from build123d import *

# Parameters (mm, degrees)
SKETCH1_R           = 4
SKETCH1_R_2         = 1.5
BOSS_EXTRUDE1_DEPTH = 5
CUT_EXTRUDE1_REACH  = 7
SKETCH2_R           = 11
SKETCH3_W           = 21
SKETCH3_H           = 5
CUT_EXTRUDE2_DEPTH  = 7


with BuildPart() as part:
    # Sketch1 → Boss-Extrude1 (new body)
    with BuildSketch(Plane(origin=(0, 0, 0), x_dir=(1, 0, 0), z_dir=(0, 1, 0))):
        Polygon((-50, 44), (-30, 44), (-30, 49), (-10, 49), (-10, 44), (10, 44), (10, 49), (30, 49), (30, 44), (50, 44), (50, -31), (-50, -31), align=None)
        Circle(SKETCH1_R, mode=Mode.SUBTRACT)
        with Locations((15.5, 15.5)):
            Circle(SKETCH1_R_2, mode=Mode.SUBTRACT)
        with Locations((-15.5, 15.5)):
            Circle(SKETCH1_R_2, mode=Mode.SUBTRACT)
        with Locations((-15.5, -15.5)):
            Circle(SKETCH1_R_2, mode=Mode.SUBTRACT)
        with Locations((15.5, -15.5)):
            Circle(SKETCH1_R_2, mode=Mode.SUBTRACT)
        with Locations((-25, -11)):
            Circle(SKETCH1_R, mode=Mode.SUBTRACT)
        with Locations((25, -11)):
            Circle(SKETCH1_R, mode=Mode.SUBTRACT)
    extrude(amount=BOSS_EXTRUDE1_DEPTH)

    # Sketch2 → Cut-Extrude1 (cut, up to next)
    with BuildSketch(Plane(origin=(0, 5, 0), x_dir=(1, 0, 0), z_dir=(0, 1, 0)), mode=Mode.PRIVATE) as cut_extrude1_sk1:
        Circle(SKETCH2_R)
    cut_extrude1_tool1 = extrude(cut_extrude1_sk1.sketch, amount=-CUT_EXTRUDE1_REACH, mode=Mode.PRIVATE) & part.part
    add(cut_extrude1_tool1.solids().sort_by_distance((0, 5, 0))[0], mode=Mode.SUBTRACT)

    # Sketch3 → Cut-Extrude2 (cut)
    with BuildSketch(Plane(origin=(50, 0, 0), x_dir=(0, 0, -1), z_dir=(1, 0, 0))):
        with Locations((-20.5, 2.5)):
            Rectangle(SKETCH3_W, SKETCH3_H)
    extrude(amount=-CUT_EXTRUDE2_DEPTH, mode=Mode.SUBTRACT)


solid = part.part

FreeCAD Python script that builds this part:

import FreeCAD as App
import Part
import Sketcher

doc = App.newDocument("Part")
body = doc.addObject("PartDesign::Body", "Body")

# Sketch on XZ plane
sketch1 = doc.addObject("Sketcher::SketchObject", "Sketch")
body.addObject(sketch1)
sketch1.AttachmentSupport = (doc.XZ_Plane, [""])
sketch1.MapMode = "FlatFace"
sketch1.addGeometry(Part.LineSegment(App.Vector(-30, -44, 0), App.Vector(-50, -44, 0)), False)
sketch1.addGeometry(Part.LineSegment(App.Vector(-50, -44, 0), App.Vector(-50, 31, 0)), False)
sketch1.addGeometry(Part.LineSegment(App.Vector(-50, 31, 0), App.Vector(50, 31, 0)), False)
sketch1.addGeometry(Part.LineSegment(App.Vector(50, 31, 0), App.Vector(50, -44, 0)), False)
sketch1.addGeometry(Part.LineSegment(App.Vector(50, -44, 0), App.Vector(30, -44, 0)), False)
sketch1.addGeometry(Part.LineSegment(App.Vector(30, -44, 0), App.Vector(30, -49, 0)), False)
sketch1.addGeometry(Part.LineSegment(App.Vector(30, -49, 0), App.Vector(10, -49, 0)), False)
sketch1.addGeometry(Part.LineSegment(App.Vector(10, -49, 0), App.Vector(10, -44, 0)), False)
sketch1.addGeometry(Part.LineSegment(App.Vector(10, -44, 0), App.Vector(-10, -44, 0)), False)
sketch1.addGeometry(Part.LineSegment(App.Vector(-10, -44, 0), App.Vector(-10, -49, 0)), False)
sketch1.addGeometry(Part.LineSegment(App.Vector(-10, -49, 0), App.Vector(-30, -49, 0)), False)
sketch1.addGeometry(Part.LineSegment(App.Vector(-30, -49, 0), App.Vector(-30, -44, 0)), False)
sketch1.addGeometry(Part.Circle(App.Vector(15.5, 15.5, 0), App.Vector(0, 0, 1), 1.5), False)
sketch1.addGeometry(Part.Circle(App.Vector(25, 11, 0), App.Vector(0, 0, 1), 4), False)
sketch1.addGeometry(Part.Circle(App.Vector(-15.5, 15.5, 0), App.Vector(0, 0, 1), 1.5), False)
sketch1.addGeometry(Part.Circle(App.Vector(-25, 11, 0), App.Vector(0, 0, 1), 4), False)
sketch1.addGeometry(Part.Circle(App.Vector(15.5, -15.5, 0), App.Vector(0, 0, 1), 1.5), False)
sketch1.addGeometry(Part.Circle(App.Vector(0, 0, 0), App.Vector(0, 0, 1), 4), False)
sketch1.addGeometry(Part.Circle(App.Vector(-15.5, -15.5, 0), App.Vector(0, 0, 1), 1.5), False)
sketch1.addConstraint(Sketcher.Constraint("Coincident", 0, 2, 1, 1))
sketch1.addConstraint(Sketcher.Constraint("Coincident", 1, 2, 2, 1))
sketch1.addConstraint(Sketcher.Constraint("Coincident", 2, 2, 3, 1))
sketch1.addConstraint(Sketcher.Constraint("Coincident", 3, 2, 4, 1))
sketch1.addConstraint(Sketcher.Constraint("Coincident", 4, 2, 5, 1))
sketch1.addConstraint(Sketcher.Constraint("Coincident", 5, 2, 6, 1))
sketch1.addConstraint(Sketcher.Constraint("Coincident", 6, 2, 7, 1))
sketch1.addConstraint(Sketcher.Constraint("Coincident", 7, 2, 8, 1))
sketch1.addConstraint(Sketcher.Constraint("Coincident", 8, 2, 9, 1))
sketch1.addConstraint(Sketcher.Constraint("Coincident", 9, 2, 10, 1))
sketch1.addConstraint(Sketcher.Constraint("Coincident", 10, 2, 11, 1))
sketch1.addConstraint(Sketcher.Constraint("Coincident", 11, 2, 0, 1))
sketch1.addConstraint(Sketcher.Constraint("Horizontal", 0))
sketch1.addConstraint(Sketcher.Constraint("Vertical", 1))
sketch1.addConstraint(Sketcher.Constraint("Horizontal", 2))
sketch1.addConstraint(Sketcher.Constraint("Vertical", 3))
sketch1.addConstraint(Sketcher.Constraint("Horizontal", 4))
sketch1.addConstraint(Sketcher.Constraint("Vertical", 5))
sketch1.addConstraint(Sketcher.Constraint("Horizontal", 6))
sketch1.addConstraint(Sketcher.Constraint("Vertical", 7))
sketch1.addConstraint(Sketcher.Constraint("Horizontal", 8))
sketch1.addConstraint(Sketcher.Constraint("Vertical", 9))
sketch1.addConstraint(Sketcher.Constraint("Horizontal", 10))
sketch1.addConstraint(Sketcher.Constraint("Vertical", 11))
sketch1.addConstraint(Sketcher.Constraint("Coincident", 17, 3, -1, 1))
sketch1.addConstraint(Sketcher.Constraint("Equal", 12, 14))
sketch1.addConstraint(Sketcher.Constraint("Equal", 13, 15))
sketch1.addConstraint(Sketcher.Constraint("Equal", 14, 16))
sketch1.addConstraint(Sketcher.Constraint("Equal", 15, 17))
sketch1.addConstraint(Sketcher.Constraint("Equal", 16, 18))
sketch1.addConstraint(Sketcher.Constraint("Symmetric", 14, 3, 16, 3, -1, 1))
sketch1.addConstraint(Sketcher.Constraint("Symmetric", 12, 3, 18, 3, -1, 1))
sketch1.addConstraint(Sketcher.Constraint("Symmetric", 12, 3, 14, 3, -2))
sketch1.addConstraint(Sketcher.Constraint("Symmetric", 13, 3, 15, 3, -2))
sketch1.addConstraint(Sketcher.Constraint("Symmetric", 0, 2, 3, 2, -2))
sketch1.addConstraint(Sketcher.Constraint("Symmetric", 6, 2, 9, 2, -2))
sketch1.addConstraint(Sketcher.Constraint("Horizontal", 4, 2, 7, 2))
sketch1.addConstraint(Sketcher.Constraint("Equal", 0, 4))
sketch1.addConstraint(Sketcher.Constraint("Equal", 4, 6))
sketch1.addConstraint(Sketcher.Constraint("Equal", 6, 8))
sketch1.addConstraint(Sketcher.Constraint("Diameter", 12, 3.0))
sketch1.addConstraint(Sketcher.Constraint("Diameter", 13, 8.0))
sketch1.addConstraint(Sketcher.Constraint("DistanceX", 0, 2, 0, 1, 20.0))
sketch1.addConstraint(Sketcher.Constraint("DistanceY", 1, 1, 1, 2, 75.0))
sketch1.addConstraint(Sketcher.Constraint("DistanceY", 5, 2, 5, 1, 5.0))
sketch1.addConstraint(Sketcher.Constraint("DistanceX", -1, 1, 13, 3, 25.0))
sketch1.addConstraint(Sketcher.Constraint("DistanceY", -1, 1, 13, 3, 11.0))
sketch1.addConstraint(Sketcher.Constraint("DistanceY", 0, 2, -1, 1, 44.0))
sketch1.addConstraint(Sketcher.Constraint("DistanceX", 14, 3, 12, 3, 31.0))
sketch1.addConstraint(Sketcher.Constraint("DistanceY", 16, 3, 12, 3, 31.0))
pad1 = doc.addObject("PartDesign::Pad", "Pad")
body.addObject(pad1)
pad1.Profile = sketch1
pad1.Length = 5
pad1.Reversed = True

# Sketch on XZ plane
sketch2 = doc.addObject("Sketcher::SketchObject", "Sketch001")
body.addObject(sketch2)
sketch2.AttachmentSupport = (doc.XZ_Plane, [""])
sketch2.MapMode = "FlatFace"
sketch2.AttachmentOffset = App.Placement(App.Vector(0, 0, -5), App.Rotation())
sketch2.addGeometry(Part.Circle(App.Vector(0, 0, 0), App.Vector(0, 0, 1), 11), False)
sketch2.addConstraint(Sketcher.Constraint("Coincident", 0, 3, -1, 1))
sketch2.addConstraint(Sketcher.Constraint("Diameter", 0, 22.0))
pocket1 = doc.addObject("PartDesign::Pocket", "Pocket")
body.addObject(pocket1)
pocket1.Profile = sketch2
pocket1.Length = 5
pocket1.Reversed = True

# Sketch on YZ plane
sketch3 = doc.addObject("Sketcher::SketchObject", "Sketch002")
body.addObject(sketch3)
sketch3.AttachmentSupport = (doc.YZ_Plane, [""])
sketch3.MapMode = "FlatFace"
sketch3.AttachmentOffset = App.Placement(App.Vector(0, 0, 50), App.Rotation())
sketch3.addGeometry(Part.LineSegment(App.Vector(5, 31, 0), App.Vector(0, 31, 0)), False)
sketch3.addGeometry(Part.LineSegment(App.Vector(0, 31, 0), App.Vector(0, 10, 0)), False)
sketch3.addGeometry(Part.LineSegment(App.Vector(0, 10, 0), App.Vector(5, 10, 0)), False)
sketch3.addGeometry(Part.LineSegment(App.Vector(5, 10, 0), App.Vector(5, 31, 0)), False)
sketch3.addConstraint(Sketcher.Constraint("Coincident", 0, 2, 1, 1))
sketch3.addConstraint(Sketcher.Constraint("Coincident", 1, 2, 2, 1))
sketch3.addConstraint(Sketcher.Constraint("Coincident", 2, 2, 3, 1))
sketch3.addConstraint(Sketcher.Constraint("Coincident", 3, 2, 0, 1))
sketch3.addConstraint(Sketcher.Constraint("Horizontal", 0))
sketch3.addConstraint(Sketcher.Constraint("Vertical", 1))
sketch3.addConstraint(Sketcher.Constraint("Horizontal", 2))
sketch3.addConstraint(Sketcher.Constraint("Vertical", 3))
sketch3.addConstraint(Sketcher.Constraint("PointOnObject", 0, 2, -2))
sketch3.addConstraint(Sketcher.Constraint("DistanceX", 0, 2, 0, 1, 5.0))
sketch3.addConstraint(Sketcher.Constraint("DistanceY", 1, 2, 1, 1, 21.0))
sketch3.addConstraint(Sketcher.Constraint("DistanceY", -1, 1, 0, 2, 31.0))
pocket2 = doc.addObject("PartDesign::Pocket", "Pocket001")
body.addObject(pocket2)
pocket2.Profile = sketch3
pocket2.Length = 7

doc.recompute()
